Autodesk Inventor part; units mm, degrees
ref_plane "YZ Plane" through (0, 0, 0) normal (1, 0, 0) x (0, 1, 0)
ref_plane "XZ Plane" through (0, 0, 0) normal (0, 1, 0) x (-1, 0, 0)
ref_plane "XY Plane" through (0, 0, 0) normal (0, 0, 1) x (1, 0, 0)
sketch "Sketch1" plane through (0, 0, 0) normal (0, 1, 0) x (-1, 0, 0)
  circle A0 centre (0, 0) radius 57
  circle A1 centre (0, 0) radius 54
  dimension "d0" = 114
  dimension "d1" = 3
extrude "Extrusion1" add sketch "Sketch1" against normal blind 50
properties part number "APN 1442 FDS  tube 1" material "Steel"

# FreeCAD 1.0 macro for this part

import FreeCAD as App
import Part
import Sketcher

doc = App.newDocument("Part")
body = doc.addObject("PartDesign::Body", "Body")

# Sketch on XZ plane
sketch1 = body.newObject("Sketcher::SketchObject", "Sketch")
sketch1.AttachmentSupport = (doc.getObject("XZ_Plane"), [""])
sketch1.MapMode = "FlatFace"
sketch1.addGeometry(Part.Circle(App.Vector(0, 0, 0), App.Vector(0, 0, 1), 57), False)
sketch1.addGeometry(Part.Circle(App.Vector(0, 0, 0), App.Vector(0, 0, 1), 54), False)
sketch1.addConstraint(Sketcher.Constraint("Coincident", 0, 3, -1, 1))
sketch1.addConstraint(Sketcher.Constraint("Coincident", 1, 3, -1, 1))
sketch1.addConstraint(Sketcher.Constraint("Diameter", 0, 114.0))
sketch1.addConstraint(Sketcher.Constraint("Diameter", 1, 108.0))
pad1 = body.newObject("PartDesign::Pad", "Pad")
pad1.Profile = sketch1
pad1.Length = 50

doc.recompute()
